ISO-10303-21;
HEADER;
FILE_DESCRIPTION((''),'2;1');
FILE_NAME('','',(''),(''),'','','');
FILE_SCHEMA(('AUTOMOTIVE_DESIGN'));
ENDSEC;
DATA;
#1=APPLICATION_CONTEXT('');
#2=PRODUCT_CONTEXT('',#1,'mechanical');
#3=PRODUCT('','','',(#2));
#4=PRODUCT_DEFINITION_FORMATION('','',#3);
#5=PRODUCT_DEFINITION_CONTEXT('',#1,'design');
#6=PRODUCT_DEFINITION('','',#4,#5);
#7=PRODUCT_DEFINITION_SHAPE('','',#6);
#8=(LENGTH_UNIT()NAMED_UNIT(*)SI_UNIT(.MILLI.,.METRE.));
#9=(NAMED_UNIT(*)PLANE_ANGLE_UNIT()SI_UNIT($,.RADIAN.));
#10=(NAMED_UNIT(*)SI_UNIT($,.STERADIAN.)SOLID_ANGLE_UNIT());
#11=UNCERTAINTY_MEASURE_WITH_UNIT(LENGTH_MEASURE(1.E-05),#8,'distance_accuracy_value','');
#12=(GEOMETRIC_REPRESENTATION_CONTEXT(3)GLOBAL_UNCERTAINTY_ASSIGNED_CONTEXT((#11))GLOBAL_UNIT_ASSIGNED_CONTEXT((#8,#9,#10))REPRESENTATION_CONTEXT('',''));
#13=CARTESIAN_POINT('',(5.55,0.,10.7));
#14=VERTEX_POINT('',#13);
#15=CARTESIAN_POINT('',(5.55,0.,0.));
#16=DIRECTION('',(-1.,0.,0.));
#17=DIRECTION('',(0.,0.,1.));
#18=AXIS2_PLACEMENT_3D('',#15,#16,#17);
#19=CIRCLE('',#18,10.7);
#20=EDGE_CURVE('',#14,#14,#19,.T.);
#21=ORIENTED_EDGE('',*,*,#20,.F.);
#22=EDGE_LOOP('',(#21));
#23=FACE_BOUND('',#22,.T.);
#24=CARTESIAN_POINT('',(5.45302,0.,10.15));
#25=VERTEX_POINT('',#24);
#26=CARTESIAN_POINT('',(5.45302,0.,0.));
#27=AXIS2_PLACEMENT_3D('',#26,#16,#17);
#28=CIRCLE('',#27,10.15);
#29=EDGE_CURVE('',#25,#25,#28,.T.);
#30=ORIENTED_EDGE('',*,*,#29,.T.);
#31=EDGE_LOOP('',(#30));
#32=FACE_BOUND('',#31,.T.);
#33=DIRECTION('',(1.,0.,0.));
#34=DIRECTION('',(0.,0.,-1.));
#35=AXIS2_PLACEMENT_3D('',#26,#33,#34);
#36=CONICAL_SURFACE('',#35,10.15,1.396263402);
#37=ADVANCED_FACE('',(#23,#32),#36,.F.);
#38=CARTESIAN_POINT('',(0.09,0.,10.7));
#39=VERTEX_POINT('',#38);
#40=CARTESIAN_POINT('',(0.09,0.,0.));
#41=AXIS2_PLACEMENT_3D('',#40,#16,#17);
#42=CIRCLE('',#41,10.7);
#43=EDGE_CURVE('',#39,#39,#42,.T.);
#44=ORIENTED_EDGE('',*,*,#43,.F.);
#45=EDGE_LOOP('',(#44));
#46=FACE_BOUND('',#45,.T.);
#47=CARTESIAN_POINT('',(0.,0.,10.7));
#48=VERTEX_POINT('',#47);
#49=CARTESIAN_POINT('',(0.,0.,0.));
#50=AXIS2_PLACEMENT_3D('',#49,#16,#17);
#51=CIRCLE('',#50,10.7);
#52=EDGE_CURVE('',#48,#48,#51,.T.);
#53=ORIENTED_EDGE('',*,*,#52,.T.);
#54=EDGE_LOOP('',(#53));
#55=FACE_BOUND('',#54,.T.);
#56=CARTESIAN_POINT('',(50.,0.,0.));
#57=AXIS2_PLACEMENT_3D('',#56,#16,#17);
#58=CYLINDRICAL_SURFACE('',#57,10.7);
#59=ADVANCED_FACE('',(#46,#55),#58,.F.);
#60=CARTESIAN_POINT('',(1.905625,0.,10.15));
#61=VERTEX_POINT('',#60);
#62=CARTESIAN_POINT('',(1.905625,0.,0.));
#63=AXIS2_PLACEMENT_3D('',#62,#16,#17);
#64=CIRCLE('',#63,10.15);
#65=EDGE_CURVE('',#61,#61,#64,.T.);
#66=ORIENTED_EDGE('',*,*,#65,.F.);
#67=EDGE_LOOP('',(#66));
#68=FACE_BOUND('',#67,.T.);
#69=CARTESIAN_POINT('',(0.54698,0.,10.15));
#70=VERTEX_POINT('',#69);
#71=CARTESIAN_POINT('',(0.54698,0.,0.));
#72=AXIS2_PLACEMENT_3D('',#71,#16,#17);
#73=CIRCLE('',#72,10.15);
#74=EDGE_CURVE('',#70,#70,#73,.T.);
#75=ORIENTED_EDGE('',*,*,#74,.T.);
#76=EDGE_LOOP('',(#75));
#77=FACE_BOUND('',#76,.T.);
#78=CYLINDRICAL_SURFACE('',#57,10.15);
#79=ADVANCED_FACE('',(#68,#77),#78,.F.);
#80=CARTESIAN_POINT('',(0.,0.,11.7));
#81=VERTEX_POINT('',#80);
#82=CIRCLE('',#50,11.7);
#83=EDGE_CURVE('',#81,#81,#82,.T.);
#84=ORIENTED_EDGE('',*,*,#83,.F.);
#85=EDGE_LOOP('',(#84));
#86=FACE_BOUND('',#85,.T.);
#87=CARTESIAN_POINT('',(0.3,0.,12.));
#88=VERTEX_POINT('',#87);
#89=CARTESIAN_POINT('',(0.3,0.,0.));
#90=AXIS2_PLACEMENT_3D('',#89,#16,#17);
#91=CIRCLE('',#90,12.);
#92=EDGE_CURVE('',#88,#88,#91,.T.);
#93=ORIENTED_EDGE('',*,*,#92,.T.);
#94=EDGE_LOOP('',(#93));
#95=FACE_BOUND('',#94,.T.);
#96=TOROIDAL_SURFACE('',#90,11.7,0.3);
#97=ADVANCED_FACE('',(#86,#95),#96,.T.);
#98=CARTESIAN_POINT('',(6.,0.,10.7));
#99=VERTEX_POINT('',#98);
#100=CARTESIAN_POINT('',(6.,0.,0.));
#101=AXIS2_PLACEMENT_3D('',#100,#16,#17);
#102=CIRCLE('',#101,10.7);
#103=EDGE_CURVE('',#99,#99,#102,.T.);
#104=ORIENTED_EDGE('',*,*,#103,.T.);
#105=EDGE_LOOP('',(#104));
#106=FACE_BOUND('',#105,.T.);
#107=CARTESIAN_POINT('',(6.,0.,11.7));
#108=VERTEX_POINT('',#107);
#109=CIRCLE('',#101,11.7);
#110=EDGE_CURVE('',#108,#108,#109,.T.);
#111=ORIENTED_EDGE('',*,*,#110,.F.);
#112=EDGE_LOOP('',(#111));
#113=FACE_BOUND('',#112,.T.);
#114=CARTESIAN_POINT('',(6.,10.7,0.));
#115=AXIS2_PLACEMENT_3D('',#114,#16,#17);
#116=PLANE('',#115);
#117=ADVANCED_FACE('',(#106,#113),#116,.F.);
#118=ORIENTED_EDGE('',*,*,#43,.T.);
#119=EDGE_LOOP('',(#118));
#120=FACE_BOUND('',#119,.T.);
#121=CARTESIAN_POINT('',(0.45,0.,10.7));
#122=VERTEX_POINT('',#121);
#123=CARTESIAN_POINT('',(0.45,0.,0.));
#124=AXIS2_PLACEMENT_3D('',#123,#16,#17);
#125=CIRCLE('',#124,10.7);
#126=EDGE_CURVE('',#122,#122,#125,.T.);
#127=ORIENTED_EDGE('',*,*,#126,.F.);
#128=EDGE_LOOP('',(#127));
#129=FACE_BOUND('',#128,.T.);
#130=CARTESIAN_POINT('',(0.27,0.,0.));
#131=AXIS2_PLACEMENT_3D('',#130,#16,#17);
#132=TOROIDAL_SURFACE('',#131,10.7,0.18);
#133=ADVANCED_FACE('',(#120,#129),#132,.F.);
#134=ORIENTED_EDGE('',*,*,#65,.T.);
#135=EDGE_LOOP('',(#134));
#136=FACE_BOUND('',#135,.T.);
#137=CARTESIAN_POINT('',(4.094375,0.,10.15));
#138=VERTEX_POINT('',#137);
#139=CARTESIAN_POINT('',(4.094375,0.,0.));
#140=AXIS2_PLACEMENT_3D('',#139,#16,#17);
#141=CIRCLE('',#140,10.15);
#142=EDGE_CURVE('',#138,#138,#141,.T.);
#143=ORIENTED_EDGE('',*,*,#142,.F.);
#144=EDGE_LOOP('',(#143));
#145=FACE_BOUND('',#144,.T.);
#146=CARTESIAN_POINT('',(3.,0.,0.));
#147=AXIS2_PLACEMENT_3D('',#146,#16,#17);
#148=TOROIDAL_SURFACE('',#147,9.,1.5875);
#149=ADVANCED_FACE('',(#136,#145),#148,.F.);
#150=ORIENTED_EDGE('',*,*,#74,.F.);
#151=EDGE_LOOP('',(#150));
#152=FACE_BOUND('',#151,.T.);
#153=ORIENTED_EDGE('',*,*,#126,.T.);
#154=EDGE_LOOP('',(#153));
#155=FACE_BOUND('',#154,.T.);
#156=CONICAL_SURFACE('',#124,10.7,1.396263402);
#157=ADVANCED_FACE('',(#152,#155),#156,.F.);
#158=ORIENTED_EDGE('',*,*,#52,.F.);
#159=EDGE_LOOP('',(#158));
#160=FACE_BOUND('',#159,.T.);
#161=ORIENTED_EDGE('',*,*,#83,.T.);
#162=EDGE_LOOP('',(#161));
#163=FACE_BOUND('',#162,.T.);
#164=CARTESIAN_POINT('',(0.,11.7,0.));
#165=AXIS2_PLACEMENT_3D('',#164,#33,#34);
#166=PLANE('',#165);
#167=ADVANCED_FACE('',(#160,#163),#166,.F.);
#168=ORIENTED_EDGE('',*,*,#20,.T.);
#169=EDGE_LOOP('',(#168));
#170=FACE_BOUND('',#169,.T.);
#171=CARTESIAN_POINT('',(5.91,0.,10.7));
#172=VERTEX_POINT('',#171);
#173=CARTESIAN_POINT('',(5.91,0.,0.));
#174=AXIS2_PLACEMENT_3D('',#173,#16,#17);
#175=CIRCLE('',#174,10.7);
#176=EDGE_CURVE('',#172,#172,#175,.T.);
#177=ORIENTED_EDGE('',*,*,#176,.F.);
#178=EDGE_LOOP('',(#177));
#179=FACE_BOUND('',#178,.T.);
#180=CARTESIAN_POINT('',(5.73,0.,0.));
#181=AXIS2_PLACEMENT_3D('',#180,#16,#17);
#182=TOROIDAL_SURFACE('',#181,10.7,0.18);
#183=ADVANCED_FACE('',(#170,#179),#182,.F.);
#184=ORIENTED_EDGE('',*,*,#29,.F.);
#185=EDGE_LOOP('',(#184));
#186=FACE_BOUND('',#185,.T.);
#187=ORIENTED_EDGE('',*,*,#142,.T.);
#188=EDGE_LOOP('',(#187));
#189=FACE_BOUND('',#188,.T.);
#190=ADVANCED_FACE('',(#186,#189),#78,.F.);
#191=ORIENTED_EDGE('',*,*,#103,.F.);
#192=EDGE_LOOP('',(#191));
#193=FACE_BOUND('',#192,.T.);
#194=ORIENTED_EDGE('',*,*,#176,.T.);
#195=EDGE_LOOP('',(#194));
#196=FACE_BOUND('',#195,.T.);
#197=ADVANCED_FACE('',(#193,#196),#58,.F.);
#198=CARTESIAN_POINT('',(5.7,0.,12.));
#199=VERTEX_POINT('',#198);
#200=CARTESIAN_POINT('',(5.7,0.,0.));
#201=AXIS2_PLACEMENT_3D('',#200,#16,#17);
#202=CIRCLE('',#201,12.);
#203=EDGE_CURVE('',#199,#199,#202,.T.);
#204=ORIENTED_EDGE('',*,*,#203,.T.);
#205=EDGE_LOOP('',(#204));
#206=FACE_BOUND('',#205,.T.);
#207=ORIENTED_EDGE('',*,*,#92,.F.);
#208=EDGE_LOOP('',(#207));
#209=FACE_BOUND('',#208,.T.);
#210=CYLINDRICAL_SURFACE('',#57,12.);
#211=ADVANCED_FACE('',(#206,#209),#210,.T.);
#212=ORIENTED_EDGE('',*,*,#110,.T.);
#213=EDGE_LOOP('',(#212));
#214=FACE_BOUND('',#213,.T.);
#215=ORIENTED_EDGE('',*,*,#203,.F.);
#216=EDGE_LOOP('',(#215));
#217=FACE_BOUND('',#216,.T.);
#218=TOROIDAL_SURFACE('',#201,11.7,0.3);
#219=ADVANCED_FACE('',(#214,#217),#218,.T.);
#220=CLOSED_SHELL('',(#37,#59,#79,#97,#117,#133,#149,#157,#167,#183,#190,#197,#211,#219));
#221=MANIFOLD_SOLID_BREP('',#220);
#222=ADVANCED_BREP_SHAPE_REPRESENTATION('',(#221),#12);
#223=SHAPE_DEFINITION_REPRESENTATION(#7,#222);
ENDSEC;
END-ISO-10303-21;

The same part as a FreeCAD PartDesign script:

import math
import FreeCAD as App
import Part
import Sketcher

V = App.Vector
Q = App.Units.Quantity

doc = App.newDocument("Part")
body = doc.addObject("PartDesign::Body", "Body")

sketch1 = body.newObject("Sketcher::SketchObject", "Sketch")
sketch1.AttachmentSupport = (doc.getObject("XY_Plane"), [""])
sketch1.MapMode = "FlatFace"
sketch1.addGeometry([
    Part.LineSegment(V(0, 10.7, 0), V(0.09, 10.7, 0)),
    Part.ArcOfCircle(Part.Circle(V(0.27, 10.7, 0), V(0, 0, 1), 0.18), math.radians(0), math.radians(180)),
    Part.LineSegment(V(0.45, 10.7, 0), V(0.54698, 10.15, 0)),
    Part.LineSegment(V(0.54698, 10.15, 0), V(1.905625, 10.15, 0)),
    Part.ArcOfCircle(Part.Circle(V(3, 9, 0), V(0, 0, 1), 1.5875), math.radians(46.419743), math.radians(133.580257)),
    Part.LineSegment(V(4.094375, 10.15, 0), V(5.45302, 10.15, 0)),
    Part.LineSegment(V(5.45302, 10.15, 0), V(5.55, 10.7, 0)),
    Part.ArcOfCircle(Part.Circle(V(5.73, 10.7, 0), V(0, 0, 1), 0.18), math.radians(0), math.radians(180)),
    Part.LineSegment(V(5.91, 10.7, 0), V(6, 10.7, 0)),
    Part.LineSegment(V(6, 10.7, 0), V(6, 11.7, 0)),
    Part.ArcOfCircle(Part.Circle(V(5.7, 11.7, 0), V(0, 0, 1), 0.3), math.radians(0), math.radians(90)),
    Part.LineSegment(V(5.7, 12, 0), V(0.3, 12, 0)),
    Part.ArcOfCircle(Part.Circle(V(0.3, 11.7, 0), V(0, 0, 1), 0.3), math.radians(90), math.radians(180)),
    Part.LineSegment(V(0, 11.7, 0), V(0, 10.7, 0)),
], False)
sketch1.addConstraint([
    Sketcher.Constraint("Coincident", 0, 2, 1, 2),
    Sketcher.Constraint("Coincident", 1, 1, 2, 1),
    Sketcher.Constraint("Coincident", 2, 2, 3, 1),
    Sketcher.Constraint("Coincident", 3, 2, 4, 2),
    Sketcher.Constraint("Coincident", 4, 1, 5, 1),
    Sketcher.Constraint("Coincident", 5, 2, 6, 1),
    Sketcher.Constraint("Coincident", 6, 2, 7, 2),
    Sketcher.Constraint("Coincident", 7, 1, 8, 1),
    Sketcher.Constraint("Coincident", 8, 2, 9, 1),
    Sketcher.Constraint("Tangent", 9, 2, 10, 1),
    Sketcher.Constraint("Tangent", 10, 2, 11, 1),
    Sketcher.Constraint("Tangent", 11, 2, 12, 1),
    Sketcher.Constraint("Tangent", 12, 2, 13, 1),
    Sketcher.Constraint("Coincident", 13, 2, 0, 1),
    Sketcher.Constraint("Horizontal", 0),
    Sketcher.Constraint("Horizontal", 3),
    Sketcher.Constraint("Horizontal", 5),
    Sketcher.Constraint("Horizontal", 8),
    Sketcher.Constraint("Vertical", 9),
    Sketcher.Constraint("Horizontal", 11),
    Sketcher.Constraint("Vertical", 13),
    Sketcher.Constraint("Equal", 1, 7),
    Sketcher.Constraint("Equal", 10, 12),
    Sketcher.Constraint("PointOnObject", 12, 2, -2),
    Sketcher.Constraint("Horizontal", 1, 3, 7, 3),
    Sketcher.Constraint("Horizontal", 7, 3, 0, 2),
    Sketcher.Constraint("Horizontal", 0, 2, 1, 1),
    Sketcher.Constraint("Horizontal", 3, 2, 4, 1),
    Sketcher.Constraint("Horizontal", 1, 1, 6, 2),
    Sketcher.Constraint("Horizontal", 6, 2, 7, 1),
    Sketcher.Constraint("Equal", 3, 5),
    Sketcher.Constraint("Equal", 0, 8),
    Sketcher.Constraint("Equal", 2, 6),
    Sketcher.Constraint("Radius", 10, 0.3),
    Sketcher.Constraint("DistanceY", 9, 1, 9, 2, 1.0),
    Sketcher.Constraint("Angle", 2, Q("-80 deg")),
    Sketcher.Constraint("Radius", 1, 0.18),
    Sketcher.Constraint("DistanceX", 11, 2, 11, 1, 5.4),
    Sketcher.Constraint("DistanceY", -1, 1, 4, 3, 9.0),
    Sketcher.Constraint("DistanceY", -1, 1, 10, 2, 12.0),
    Sketcher.Constraint("DistanceX", 0, 1, 0, 2, 0.09),
    Sketcher.Constraint("Radius", 4, 1.5875),
    Sketcher.Constraint("DistanceY", -1, 1, 2, 2, 10.15),
])
revolution = body.newObject("PartDesign::Revolution", "Revolution")
revolution.Profile = sketch1
revolution.ReferenceAxis = (sketch1, ["H_Axis"])
revolution.Angle = 360

doc.recompute()
